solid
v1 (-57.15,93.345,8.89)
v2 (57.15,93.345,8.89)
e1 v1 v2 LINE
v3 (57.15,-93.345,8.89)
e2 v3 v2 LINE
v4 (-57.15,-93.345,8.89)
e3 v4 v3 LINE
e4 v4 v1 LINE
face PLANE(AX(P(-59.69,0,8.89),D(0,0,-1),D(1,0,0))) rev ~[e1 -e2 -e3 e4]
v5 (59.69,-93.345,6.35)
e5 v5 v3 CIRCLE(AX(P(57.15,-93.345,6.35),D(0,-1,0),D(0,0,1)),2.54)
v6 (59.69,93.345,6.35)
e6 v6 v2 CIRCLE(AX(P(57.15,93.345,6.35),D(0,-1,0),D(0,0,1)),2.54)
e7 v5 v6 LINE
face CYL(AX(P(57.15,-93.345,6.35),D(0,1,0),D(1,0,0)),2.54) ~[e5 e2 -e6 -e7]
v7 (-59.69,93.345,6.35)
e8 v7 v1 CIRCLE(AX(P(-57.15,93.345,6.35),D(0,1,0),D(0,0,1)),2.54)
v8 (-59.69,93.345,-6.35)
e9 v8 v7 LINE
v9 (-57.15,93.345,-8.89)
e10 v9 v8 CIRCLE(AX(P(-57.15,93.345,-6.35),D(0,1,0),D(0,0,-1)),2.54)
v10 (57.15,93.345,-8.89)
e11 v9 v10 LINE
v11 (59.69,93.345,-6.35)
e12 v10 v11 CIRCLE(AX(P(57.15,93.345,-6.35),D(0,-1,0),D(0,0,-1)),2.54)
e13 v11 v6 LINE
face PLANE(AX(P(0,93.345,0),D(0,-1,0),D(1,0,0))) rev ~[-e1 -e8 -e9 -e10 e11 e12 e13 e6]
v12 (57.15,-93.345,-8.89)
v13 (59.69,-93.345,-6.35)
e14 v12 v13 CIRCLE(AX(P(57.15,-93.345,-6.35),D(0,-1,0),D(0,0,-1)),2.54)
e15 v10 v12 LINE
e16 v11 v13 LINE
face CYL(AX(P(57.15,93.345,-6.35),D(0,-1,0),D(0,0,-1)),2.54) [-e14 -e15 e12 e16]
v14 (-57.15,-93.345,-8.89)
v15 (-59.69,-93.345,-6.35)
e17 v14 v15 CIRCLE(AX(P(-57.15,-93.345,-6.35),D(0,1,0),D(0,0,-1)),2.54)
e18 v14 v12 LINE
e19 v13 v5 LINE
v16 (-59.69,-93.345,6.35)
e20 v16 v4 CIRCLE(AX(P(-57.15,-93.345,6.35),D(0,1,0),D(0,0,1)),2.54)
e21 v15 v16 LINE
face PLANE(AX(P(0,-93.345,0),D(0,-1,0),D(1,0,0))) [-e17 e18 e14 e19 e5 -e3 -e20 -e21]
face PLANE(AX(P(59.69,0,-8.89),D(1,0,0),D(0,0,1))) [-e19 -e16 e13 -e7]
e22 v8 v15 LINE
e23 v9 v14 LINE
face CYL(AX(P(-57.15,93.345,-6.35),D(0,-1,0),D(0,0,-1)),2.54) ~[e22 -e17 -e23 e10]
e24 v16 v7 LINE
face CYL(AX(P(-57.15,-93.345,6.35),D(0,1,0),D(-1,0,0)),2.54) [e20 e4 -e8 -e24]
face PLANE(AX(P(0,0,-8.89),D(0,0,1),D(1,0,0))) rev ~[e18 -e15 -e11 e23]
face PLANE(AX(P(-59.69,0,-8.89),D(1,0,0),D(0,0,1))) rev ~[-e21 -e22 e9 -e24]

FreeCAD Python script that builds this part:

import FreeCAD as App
import Part
import Sketcher
Q = App.Units.Quantity


def edges_at(feature, points):
    """Names of the edges that pass closest to the given points."""
    edges = feature.Shape.Edges
    near = lambda p: min(range(len(edges)), key=lambda i: edges[i].distToShape(Part.Vertex(*p))[0])
    return sorted({f"Edge{near(p) + 1}" for p in points})


def add_polygon(sketch, points):
    """Adds a closed chain of lines whose ends are joined by coincident constraints."""
    first, n = sketch.GeometryCount, len(points)
    for a, b in zip(points, points[1:] + points[:1]):
        sketch.addGeometry(Part.LineSegment(App.Vector(*a, 0), App.Vector(*b, 0)), False)
    for i in range(n):
        sketch.addConstraint(Sketcher.Constraint("Coincident", first + i, 2, first + (i + 1) % n, 1))

doc = App.newDocument("Part")
body = doc.addObject("PartDesign::Body", "Body")

# Sketch on XZ plane
sketch1 = body.newObject("Sketcher::SketchObject", "Sketch")
sketch1.AttachmentSupport = (doc.getObject("XZ_Plane"), [""])
sketch1.MapMode = "FlatFace"
add_polygon(sketch1, [(-60, 9), (-60, -9), (60, -9), (60, 9)])  # lines 0-3
sketch1.addConstraint([
    Sketcher.Constraint("Vertical", 0),
    Sketcher.Constraint("Horizontal", 1),
    Sketcher.Constraint("Vertical", 2),
    Sketcher.Constraint("Horizontal", 3),
    Sketcher.Constraint("Symmetric", 0, 2, 2, 2, -1, 1),
    Sketcher.Constraint("DistanceX", 1, 1, 1, 2, Q("4.7 in")),
    Sketcher.Constraint("DistanceY", 0, 2, 0, 1, Q("0.7 in")),
])
pad1 = body.newObject("PartDesign::Pad", "Pad")
pad1.Profile = sketch1
pad1.Length = Q("7.35 in")
pad1.Midplane = True

# Sketch on XY plane
sketch2 = body.newObject("Sketcher::SketchObject", "Sketch001")
sketch2.AttachmentSupport = (doc.getObject("XY_Plane"), [""])
sketch2.MapMode = "FlatFace"
add_polygon(sketch2, [(-53, 89), (-53, -89), (53, -89), (53, 89)])  # lines 0-3
sketch2.addConstraint([
    Sketcher.Constraint("Vertical", 0),
    Sketcher.Constraint("Horizontal", 1),
    Sketcher.Constraint("Vertical", 2),
    Sketcher.Constraint("Horizontal", 3),
    Sketcher.Constraint("Symmetric", 0, 2, 2, 2, -1, 1),
    Sketcher.Constraint("DistanceY", 0, 2, 0, 1, Q("7 in")),
    Sketcher.Constraint("DistanceX", 1, 1, 1, 2, Q("4.2 in")),
])
pocket1 = body.newObject("PartDesign::Pocket", "Pocket")
pocket1.Profile = sketch2
pocket1.Length = Q("0.7 in")

# Sketch on XY plane
sketch3 = body.newObject("Sketcher::SketchObject", "Sketch002")
sketch3.AttachmentSupport = (doc.getObject("XY_Plane"), [""])
sketch3.MapMode = "FlatFace"
add_polygon(sketch3, [(-53, 89), (-53, -89), (53, -89), (53, 89)])  # lines 0-3
sketch3.addConstraint([
    Sketcher.Constraint("Vertical", 0),
    Sketcher.Constraint("Horizontal", 1),
    Sketcher.Constraint("Vertical", 2),
    Sketcher.Constraint("Horizontal", 3),
    Sketcher.Constraint("Symmetric", 0, 2, 2, 2, -1, 1),
    Sketcher.Constraint("DistanceY", 0, 2, 0, 1, Q("7 in")),
    Sketcher.Constraint("DistanceX", 1, 1, 1, 2, Q("4.2 in")),
])
pad2 = body.newObject("PartDesign::Pad", "Pad001")
pad2.Profile = sketch3
pad2.Length = Q("0.7 in")
pad2.Midplane = True
doc.recompute()

fillet = body.newObject("PartDesign::Fillet", "Fillet")
fillet.Base = (pad2, edges_at(pad2, [
    (-59.69, 0, 8.89),
    (-59.69, 0, -8.89),
    (59.69, 0, 8.89),
    (59.69, 0, -8.89),
]))
fillet.Radius = Q("0.1 in")

doc.recompute()
